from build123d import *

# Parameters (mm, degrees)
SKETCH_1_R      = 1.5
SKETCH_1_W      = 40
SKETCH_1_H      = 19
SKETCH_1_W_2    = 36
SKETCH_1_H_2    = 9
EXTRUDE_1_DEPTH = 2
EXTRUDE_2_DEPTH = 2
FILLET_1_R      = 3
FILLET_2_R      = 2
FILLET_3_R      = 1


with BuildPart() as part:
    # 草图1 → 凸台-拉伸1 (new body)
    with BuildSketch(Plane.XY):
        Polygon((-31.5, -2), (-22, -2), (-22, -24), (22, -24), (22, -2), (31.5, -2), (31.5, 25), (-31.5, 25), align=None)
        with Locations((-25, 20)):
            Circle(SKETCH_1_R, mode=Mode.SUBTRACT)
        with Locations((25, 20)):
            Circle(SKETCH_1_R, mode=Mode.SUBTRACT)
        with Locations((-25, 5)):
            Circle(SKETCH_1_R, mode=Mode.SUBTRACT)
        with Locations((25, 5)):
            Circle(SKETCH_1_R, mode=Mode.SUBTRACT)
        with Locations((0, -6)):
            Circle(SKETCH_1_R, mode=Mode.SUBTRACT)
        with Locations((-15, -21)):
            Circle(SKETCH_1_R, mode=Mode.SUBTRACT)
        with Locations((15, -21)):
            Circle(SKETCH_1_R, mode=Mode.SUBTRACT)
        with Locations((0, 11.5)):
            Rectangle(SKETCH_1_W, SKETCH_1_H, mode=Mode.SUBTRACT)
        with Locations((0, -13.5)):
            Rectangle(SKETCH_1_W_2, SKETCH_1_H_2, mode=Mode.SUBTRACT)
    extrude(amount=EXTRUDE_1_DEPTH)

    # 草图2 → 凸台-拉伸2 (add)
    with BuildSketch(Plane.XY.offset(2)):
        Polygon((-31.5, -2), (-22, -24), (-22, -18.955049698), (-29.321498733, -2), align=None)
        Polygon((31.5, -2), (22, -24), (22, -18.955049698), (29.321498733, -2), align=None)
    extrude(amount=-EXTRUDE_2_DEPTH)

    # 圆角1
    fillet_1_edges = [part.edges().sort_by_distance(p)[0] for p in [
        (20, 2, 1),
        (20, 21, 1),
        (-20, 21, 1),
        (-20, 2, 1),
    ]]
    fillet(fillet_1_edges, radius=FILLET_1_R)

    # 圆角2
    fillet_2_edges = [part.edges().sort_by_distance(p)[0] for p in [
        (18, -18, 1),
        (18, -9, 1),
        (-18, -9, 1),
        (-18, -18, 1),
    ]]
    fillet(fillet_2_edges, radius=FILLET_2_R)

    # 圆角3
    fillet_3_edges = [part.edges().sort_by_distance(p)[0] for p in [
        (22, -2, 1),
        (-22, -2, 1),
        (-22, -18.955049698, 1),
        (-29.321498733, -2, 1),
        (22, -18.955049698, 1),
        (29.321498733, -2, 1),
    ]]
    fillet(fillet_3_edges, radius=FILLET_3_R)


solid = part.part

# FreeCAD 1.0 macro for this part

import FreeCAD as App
import Part
import Sketcher


def edges_at(feature, points):
    """Names of the edges that pass closest to the given points."""
    edges = feature.Shape.Edges
    near = lambda p: min(range(len(edges)), key=lambda i: edges[i].distToShape(Part.Vertex(*p))[0])
    return sorted({f"Edge{near(p) + 1}" for p in points})

doc = App.newDocument("Part")
body = doc.addObject("PartDesign::Body", "Body")

sketch1 = doc.addObject("Sketcher::SketchObject", "Sketch")
body.addObject(sketch1)
sketch1.AttachmentSupport = (doc.XY_Plane, [""])
sketch1.MapMode = "FlatFace"
sketch1.addGeometry(Part.LineSegment(App.Vector(-31.5, -2, 0), App.Vector(-22, -2, 0)), False)
sketch1.addGeometry(Part.LineSegment(App.Vector(-22, -2, 0), App.Vector(-22, -24, 0)), False)
sketch1.addGeometry(Part.LineSegment(App.Vector(-22, -24, 0), App.Vector(22, -24, 0)), False)
sketch1.addGeometry(Part.LineSegment(App.Vector(22, -24, 0), App.Vector(22, -2, 0)), False)
sketch1.addGeometry(Part.LineSegment(App.Vector(22, -2, 0), App.Vector(31.5, -2, 0)), False)
sketch1.addGeometry(Part.LineSegment(App.Vector(31.5, -2, 0), App.Vector(31.5, 25, 0)), False)
sketch1.addGeometry(Part.LineSegment(App.Vector(31.5, 25, 0), App.Vector(-31.5, 25, 0)), False)
sketch1.addGeometry(Part.LineSegment(App.Vector(-31.5, 25, 0), App.Vector(-31.5, -2, 0)), False)
sketch1.addGeometry(Part.Circle(App.Vector(-15, -21, 0), App.Vector(0, 0, 1), 1.5), False)
sketch1.addGeometry(Part.LineSegment(App.Vector(18, -18, 0), App.Vector(-18, -18, 0)), False)
sketch1.addGeometry(Part.LineSegment(App.Vector(-18, -18, 0), App.Vector(-18, -9, 0)), False)
sketch1.addGeometry(Part.LineSegment(App.Vector(-18, -9, 0), App.Vector(18, -9, 0)), False)
sketch1.addGeometry(Part.LineSegment(App.Vector(18, -9, 0), App.Vector(18, -18, 0)), False)
sketch1.addGeometry(Part.Circle(App.Vector(15, -21, 0), App.Vector(0, 0, 1), 1.5), False)
sketch1.addGeometry(Part.Circle(App.Vector(0, -6, 0), App.Vector(0, 0, 1), 1.5), False)
sketch1.addGeometry(Part.Circle(App.Vector(-25, 5, 0), App.Vector(0, 0, 1), 1.5), False)
sketch1.addGeometry(Part.Circle(App.Vector(-25, 20, 0), App.Vector(0, 0, 1), 1.5), False)
sketch1.addGeometry(Part.Circle(App.Vector(25, 5, 0), App.Vector(0, 0, 1), 1.5), False)
sketch1.addGeometry(Part.LineSegment(App.Vector(20, 2, 0), App.Vector(-20, 2, 0)), False)
sketch1.addGeometry(Part.LineSegment(App.Vector(-20, 2, 0), App.Vector(-20, 21, 0)), False)
sketch1.addGeometry(Part.LineSegment(App.Vector(-20, 21, 0), App.Vector(20, 21, 0)), False)
sketch1.addGeometry(Part.LineSegment(App.Vector(20, 21, 0), App.Vector(20, 2, 0)), False)
sketch1.addGeometry(Part.Circle(App.Vector(25, 20, 0), App.Vector(0, 0, 1), 1.5), False)
sketch1.addConstraint(Sketcher.Constraint("Coincident", 0, 2, 1, 1))
sketch1.addConstraint(Sketcher.Constraint("Coincident", 1, 2, 2, 1))
sketch1.addConstraint(Sketcher.Constraint("Coincident", 2, 2, 3, 1))
sketch1.addConstraint(Sketcher.Constraint("Coincident", 3, 2, 4, 1))
sketch1.addConstraint(Sketcher.Constraint("Coincident", 4, 2, 5, 1))
sketch1.addConstraint(Sketcher.Constraint("Coincident", 5, 2, 6, 1))
sketch1.addConstraint(Sketcher.Constraint("Coincident", 6, 2, 7, 1))
sketch1.addConstraint(Sketcher.Constraint("Coincident", 7, 2, 0, 1))
sketch1.addConstraint(Sketcher.Constraint("Coincident", 9, 2, 10, 1))
sketch1.addConstraint(Sketcher.Constraint("Coincident", 10, 2, 11, 1))
sketch1.addConstraint(Sketcher.Constraint("Coincident", 11, 2, 12, 1))
sketch1.addConstraint(Sketcher.Constraint("Coincident", 12, 2, 9, 1))
sketch1.addConstraint(Sketcher.Constraint("Coincident", 18, 2, 19, 1))
sketch1.addConstraint(Sketcher.Constraint("Coincident", 19, 2, 20, 1))
sketch1.addConstraint(Sketcher.Constraint("Coincident", 20, 2, 21, 1))
sketch1.addConstraint(Sketcher.Constraint("Coincident", 21, 2, 18, 1))
sketch1.addConstraint(Sketcher.Constraint("Horizontal", 0))
sketch1.addConstraint(Sketcher.Constraint("Vertical", 1))
sketch1.addConstraint(Sketcher.Constraint("Horizontal", 2))
sketch1.addConstraint(Sketcher.Constraint("Vertical", 3))
sketch1.addConstraint(Sketcher.Constraint("Horizontal", 4))
sketch1.addConstraint(Sketcher.Constraint("Vertical", 5))
sketch1.addConstraint(Sketcher.Constraint("Horizontal", 6))
sketch1.addConstraint(Sketcher.Constraint("Vertical", 7))
sketch1.addConstraint(Sketcher.Constraint("Horizontal", 9))
sketch1.addConstraint(Sketcher.Constraint("Vertical", 10))
sketch1.addConstraint(Sketcher.Constraint("Horizontal", 11))
sketch1.addConstraint(Sketcher.Constraint("Vertical", 12))
sketch1.addConstraint(Sketcher.Constraint("Horizontal", 18))
sketch1.addConstraint(Sketcher.Constraint("Vertical", 19))
sketch1.addConstraint(Sketcher.Constraint("Horizontal", 20))
sketch1.addConstraint(Sketcher.Constraint("Vertical", 21))
sketch1.addConstraint(Sketcher.Constraint("Equal", 8, 13))
sketch1.addConstraint(Sketcher.Constraint("Equal", 13, 14))
sketch1.addConstraint(Sketcher.Constraint("Equal", 14, 15))
sketch1.addConstraint(Sketcher.Constraint("Equal", 15, 16))
sketch1.addConstraint(Sketcher.Constraint("Equal", 16, 17))
sketch1.addConstraint(Sketcher.Constraint("Equal", 17, 22))
sketch1.addConstraint(Sketcher.Constraint("Symmetric", 8, 3, 13, 3, -2))
sketch1.addConstraint(Sketcher.Constraint("Symmetric", 15, 3, 17, 3, -2))
sketch1.addConstraint(Sketcher.Constraint("Symmetric", 16, 3, 22, 3, -2))
sketch1.addConstraint(Sketcher.Constraint("Symmetric", 0, 2, 3, 2, -2))
sketch1.addConstraint(Sketcher.Constraint("PointOnObject", 14, 3, -2))
sketch1.addConstraint(Sketcher.Constraint("Vertical", 15, 3, 16, 3))
sketch1.addConstraint(Sketcher.Constraint("Equal", 0, 4))
sketch1.addConstraint(Sketcher.Constraint("Diameter", 8, 3.0))
sketch1.addConstraint(Sketcher.Constraint("DistanceX", 2, 1, 2, 2, 44.0))
sketch1.addConstraint(Sketcher.Constraint("DistanceX", 6, 2, 6, 1, 63.0))
sketch1.addConstraint(Sketcher.Constraint("DistanceX", 9, 2, 9, 1, 36.0))
sketch1.addConstraint(Sketcher.Constraint("DistanceX", 18, 2, 18, 1, 40.0))
sketch1.addConstraint(Sketcher.Constraint("DistanceY", 1, 2, 1, 1, 22.0))
sketch1.addConstraint(Sketcher.Constraint("DistanceY", 5, 1, 5, 2, 27.0))
sketch1.addConstraint(Sketcher.Constraint("DistanceY", 10, 1, 10, 2, 9.0))
sketch1.addConstraint(Sketcher.Constraint("DistanceY", 19, 1, 19, 2, 19.0))
sketch1.addConstraint(Sketcher.Constraint("DistanceX", 8, 3, -1, 1, 15.0))
sketch1.addConstraint(Sketcher.Constraint("DistanceY", 8, 3, -1, 1, 21.0))
sketch1.addConstraint(Sketcher.Constraint("DistanceY", 14, 3, -1, 1, 6.0))
sketch1.addConstraint(Sketcher.Constraint("DistanceX", 15, 3, -1, 1, 25.0))
sketch1.addConstraint(Sketcher.Constraint("DistanceY", -1, 1, 15, 3, 5.0))
sketch1.addConstraint(Sketcher.Constraint("DistanceY", -1, 1, 16, 3, 20.0))
sketch1.addConstraint(Sketcher.Constraint("DistanceY", 0, 2, -1, 1, 2.0))
sketch1.addConstraint(Sketcher.Constraint("DistanceX", 9, 2, -1, 1, 18.0))
sketch1.addConstraint(Sketcher.Constraint("DistanceY", 9, 2, -1, 1, 18.0))
sketch1.addConstraint(Sketcher.Constraint("DistanceX", 18, 2, -1, 1, 20.0))
sketch1.addConstraint(Sketcher.Constraint("DistanceY", -1, 1, 18, 2, 2.0))
pad1 = doc.addObject("PartDesign::Pad", "Pad")
body.addObject(pad1)
pad1.Profile = sketch1
pad1.Length = 2

sketch2 = doc.addObject("Sketcher::SketchObject", "Sketch001")
body.addObject(sketch2)
sketch2.AttachmentSupport = (doc.XY_Plane, [""])
sketch2.MapMode = "FlatFace"
sketch2.AttachmentOffset = App.Placement(App.Vector(0, 0, 2), App.Rotation())
sketch2.addGeometry(Part.LineSegment(App.Vector(-31.5, -2, 0), App.Vector(-22, -24, 0)), False)
sketch2.addGeometry(Part.LineSegment(App.Vector(-22, -24, 0), App.Vector(-22, -18.95505, 0)), False)
sketch2.addGeometry(Part.LineSegment(App.Vector(-22, -18.95505, 0), App.Vector(-29.321499, -2, 0)), False)
sketch2.addGeometry(Part.LineSegment(App.Vector(-29.321499, -2, 0), App.Vector(-31.5, -2, 0)), False)
sketch2.addGeometry(Part.LineSegment(App.Vector(22, -24, 0), App.Vector(31.5, -2, 0)), False)
sketch2.addGeometry(Part.LineSegment(App.Vector(31.5, -2, 0), App.Vector(29.321499, -2, 0)), False)
sketch2.addGeometry(Part.LineSegment(App.Vector(29.321499, -2, 0), App.Vector(22, -18.95505, 0)), False)
sketch2.addGeometry(Part.LineSegment(App.Vector(22, -18.95505, 0), App.Vector(22, -24, 0)), False)
sketch2.addConstraint(Sketcher.Constraint("Coincident", 0, 2, 1, 1))
sketch2.addConstraint(Sketcher.Constraint("Coincident", 1, 2, 2, 1))
sketch2.addConstraint(Sketcher.Constraint("Coincident", 2, 2, 3, 1))
sketch2.addConstraint(Sketcher.Constraint("Coincident", 3, 2, 0, 1))
sketch2.addConstraint(Sketcher.Constraint("Coincident", 4, 2, 5, 1))
sketch2.addConstraint(Sketcher.Constraint("Coincident", 5, 2, 6, 1))
sketch2.addConstraint(Sketcher.Constraint("Coincident", 6, 2, 7, 1))
sketch2.addConstraint(Sketcher.Constraint("Coincident", 7, 2, 4, 1))
sketch2.addConstraint(Sketcher.Constraint("Vertical", 1))
sketch2.addConstraint(Sketcher.Constraint("Horizontal", 3))
sketch2.addConstraint(Sketcher.Constraint("Horizontal", 5))
sketch2.addConstraint(Sketcher.Constraint("Vertical", 7))
sketch2.addConstraint(Sketcher.Constraint("Symmetric", 3, 2, 4, 2, -2))
sketch2.addConstraint(Sketcher.Constraint("Symmetric", 1, 2, 6, 2, -2))
sketch2.addConstraint(Sketcher.Constraint("Parallel", 0, 2))
sketch2.addConstraint(Sketcher.Constraint("Parallel", 4, 6))
sketch2.addConstraint(Sketcher.Constraint("Horizontal", 0, 2, 7, 2))
sketch2.addConstraint(Sketcher.Constraint("DistanceX", 0, 2, -1, 1, 22.0))
sketch2.addConstraint(Sketcher.Constraint("DistanceY", 0, 2, -1, 1, 24.0))
sketch2.addConstraint(Sketcher.Constraint("DistanceY", 2, 2, -1, 1, 2.0))
sketch2.addConstraint(Sketcher.Constraint("DistanceX", 3, 2, 4, 2, 63.0))
sketch2.addConstraint(Sketcher.Constraint("DistanceX", 3, 2, 3, 1, 2.178501))
pad2 = doc.addObject("PartDesign::Pad", "Pad001")
body.addObject(pad2)
pad2.Profile = sketch2
pad2.Length = 2
pad2.Reversed = True
doc.recompute()

fillet = doc.addObject("PartDesign::Fillet", "Fillet")
body.addObject(fillet)
fillet.Base = (pad2, edges_at(pad2, [
    (20, 2, 1),
    (20, 21, 1),
    (-20, 21, 1),
    (-20, 2, 1),
]))
fillet.Radius = 3
doc.recompute()

fillet2 = doc.addObject("PartDesign::Fillet", "Fillet001")
body.addObject(fillet2)
fillet2.Base = (fillet, edges_at(fillet, [
    (18, -18, 1),
    (18, -9, 1),
    (-18, -9, 1),
    (-18, -18, 1),
]))
fillet2.Radius = 2
doc.recompute()

fillet3 = doc.addObject("PartDesign::Fillet", "Fillet002")
body.addObject(fillet3)
fillet3.Base = (fillet2, edges_at(fillet2, [
    (22, -2, 1),
    (-22, -2, 1),
    (-22, -18.955, 1),
    (-29.321, -2, 1),
    (22, -18.955, 1),
    (29.321, -2, 1),
]))
fillet3.Radius = 1

doc.recompute()
